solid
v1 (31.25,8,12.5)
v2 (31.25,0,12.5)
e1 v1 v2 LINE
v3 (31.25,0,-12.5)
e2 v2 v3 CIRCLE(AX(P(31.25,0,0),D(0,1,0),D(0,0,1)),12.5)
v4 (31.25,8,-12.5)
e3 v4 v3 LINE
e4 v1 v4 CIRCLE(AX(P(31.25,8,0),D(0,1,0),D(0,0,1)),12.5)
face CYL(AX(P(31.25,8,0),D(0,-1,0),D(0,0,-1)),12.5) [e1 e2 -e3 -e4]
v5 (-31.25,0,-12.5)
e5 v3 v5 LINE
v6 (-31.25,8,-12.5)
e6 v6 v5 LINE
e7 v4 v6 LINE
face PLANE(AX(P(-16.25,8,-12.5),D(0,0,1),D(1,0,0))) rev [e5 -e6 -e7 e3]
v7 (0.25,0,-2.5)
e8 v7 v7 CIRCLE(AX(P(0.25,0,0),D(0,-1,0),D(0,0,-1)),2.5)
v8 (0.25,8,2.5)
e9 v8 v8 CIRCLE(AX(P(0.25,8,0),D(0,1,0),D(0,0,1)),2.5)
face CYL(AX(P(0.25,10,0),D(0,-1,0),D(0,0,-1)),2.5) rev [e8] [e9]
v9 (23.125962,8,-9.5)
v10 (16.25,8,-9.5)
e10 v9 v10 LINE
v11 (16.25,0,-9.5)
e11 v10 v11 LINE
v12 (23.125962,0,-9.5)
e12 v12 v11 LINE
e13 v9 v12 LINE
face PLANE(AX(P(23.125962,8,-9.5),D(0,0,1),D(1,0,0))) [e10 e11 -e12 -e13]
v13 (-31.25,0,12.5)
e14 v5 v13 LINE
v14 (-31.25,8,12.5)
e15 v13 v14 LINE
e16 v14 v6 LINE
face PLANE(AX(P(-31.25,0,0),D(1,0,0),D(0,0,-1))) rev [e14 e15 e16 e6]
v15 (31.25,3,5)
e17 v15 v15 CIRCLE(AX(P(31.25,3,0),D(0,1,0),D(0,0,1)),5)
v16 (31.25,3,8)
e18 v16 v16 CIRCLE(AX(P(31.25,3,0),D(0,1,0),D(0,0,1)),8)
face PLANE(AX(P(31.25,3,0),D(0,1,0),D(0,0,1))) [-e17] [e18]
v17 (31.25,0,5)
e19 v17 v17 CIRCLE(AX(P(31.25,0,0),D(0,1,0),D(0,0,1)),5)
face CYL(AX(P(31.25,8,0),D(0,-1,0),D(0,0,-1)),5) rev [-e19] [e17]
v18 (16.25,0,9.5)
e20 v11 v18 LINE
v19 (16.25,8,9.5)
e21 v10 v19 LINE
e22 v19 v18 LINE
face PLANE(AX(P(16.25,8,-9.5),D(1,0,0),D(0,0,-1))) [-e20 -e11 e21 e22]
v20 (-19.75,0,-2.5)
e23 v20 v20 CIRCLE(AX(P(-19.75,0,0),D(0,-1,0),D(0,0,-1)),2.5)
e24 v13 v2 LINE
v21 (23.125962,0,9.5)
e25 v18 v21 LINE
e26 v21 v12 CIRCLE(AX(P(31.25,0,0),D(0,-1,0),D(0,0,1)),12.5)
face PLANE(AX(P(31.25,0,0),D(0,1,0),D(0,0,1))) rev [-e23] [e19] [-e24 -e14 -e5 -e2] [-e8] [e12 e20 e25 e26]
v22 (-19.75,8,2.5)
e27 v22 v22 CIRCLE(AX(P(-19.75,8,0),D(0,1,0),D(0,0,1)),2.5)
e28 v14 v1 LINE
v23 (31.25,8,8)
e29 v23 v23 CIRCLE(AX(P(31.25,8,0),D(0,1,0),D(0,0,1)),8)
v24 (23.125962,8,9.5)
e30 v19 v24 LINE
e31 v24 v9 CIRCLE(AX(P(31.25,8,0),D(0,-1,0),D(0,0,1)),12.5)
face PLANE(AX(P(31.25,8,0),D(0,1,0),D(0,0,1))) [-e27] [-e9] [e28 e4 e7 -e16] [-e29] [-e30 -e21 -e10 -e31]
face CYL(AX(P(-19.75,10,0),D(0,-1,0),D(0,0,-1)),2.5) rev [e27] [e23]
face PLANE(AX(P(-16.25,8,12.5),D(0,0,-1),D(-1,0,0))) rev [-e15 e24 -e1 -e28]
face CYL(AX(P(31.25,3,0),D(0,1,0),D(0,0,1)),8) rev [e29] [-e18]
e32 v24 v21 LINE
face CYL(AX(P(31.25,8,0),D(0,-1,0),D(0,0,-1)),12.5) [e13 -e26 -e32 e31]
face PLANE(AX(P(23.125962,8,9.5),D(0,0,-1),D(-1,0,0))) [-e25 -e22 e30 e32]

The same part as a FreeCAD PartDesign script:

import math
import FreeCAD as App
import Part
import Sketcher

V = App.Vector


def add_polygon(sketch, points):
    """Adds a closed chain of lines whose ends are joined by coincident constraints."""
    first, n = sketch.GeometryCount, len(points)
    for a, b in zip(points, points[1:] + points[:1]):
        sketch.addGeometry(Part.LineSegment(App.Vector(*a, 0), App.Vector(*b, 0)), False)
    for i in range(n):
        sketch.addConstraint(Sketcher.Constraint("Coincident", first + i, 2, first + (i + 1) % n, 1))

doc = App.newDocument("Part")
body = doc.addObject("PartDesign::Body", "Body")

# Sketch on XZ plane
sketch1 = body.newObject("Sketcher::SketchObject", "Sketch")
sketch1.AttachmentSupport = (doc.getObject("XZ_Plane"), [""])
sketch1.MapMode = "FlatFace"
sketch1.addGeometry([
    Part.LineSegment(V(31, -12, 0), V(-16, -12, 0)),  # 0
    Part.LineSegment(V(-16, -12, 0), V(-16, 12, 0)),  # 1
    Part.LineSegment(V(-16, 12, 0), V(31, 12, 0)),  # 2
    Part.ArcOfCircle(Part.Circle(V(31, 0, 0), V(0, 0, 1), 12), math.radians(-90), math.radians(90)),  # 3
    Part.Circle(V(31, 0, 0), V(0, 0, 1), 5),  # 4
    Part.LineSegment(V(16, -10, 0), V(23, -10, 0)),  # 5
    Part.ArcOfCircle(Part.Circle(V(31, 0, 0), V(0, 0, 1), 13), math.radians(131), math.radians(229)),  # 6
    Part.LineSegment(V(23, 10, 0), V(16, 10, 0)),  # 7
    Part.LineSegment(V(16, 10, 0), V(16, -10, 0)),  # 8
], False)
sketch1.addConstraint([
    Sketcher.Constraint("Coincident", 0, 2, 1, 1),
    Sketcher.Constraint("Coincident", 1, 2, 2, 1),
    Sketcher.Constraint("Tangent", 2, 2, 3, 2),
    Sketcher.Constraint("Tangent", 3, 1, 0, 1),
    Sketcher.Constraint("Coincident", 5, 2, 6, 2),
    Sketcher.Constraint("Coincident", 6, 1, 7, 1),
    Sketcher.Constraint("Coincident", 7, 2, 8, 1),
    Sketcher.Constraint("Coincident", 8, 2, 5, 1),
    Sketcher.Constraint("Horizontal", 0),
    Sketcher.Constraint("Vertical", 1),
    Sketcher.Constraint("Horizontal", 2),
    Sketcher.Constraint("Horizontal", 5),
    Sketcher.Constraint("Horizontal", 7),
    Sketcher.Constraint("Vertical", 8),
    Sketcher.Constraint("Coincident", 4, 3, 3, 3),
    Sketcher.Constraint("Coincident", 6, 3, 3, 3),
    Sketcher.Constraint("Equal", 3, 6),
    Sketcher.Constraint("Symmetric", 5, 2, 6, 1, -1),
    Sketcher.Constraint("Diameter", 4, 10.0),
    Sketcher.Constraint("Radius", 3, 12.5),
    Sketcher.Constraint("DistanceY", 8, 2, 8, 1, 19.0),
    Sketcher.Constraint("DistanceX", 0, 2, 0, 1, 47.5),
    Sketcher.Constraint("DistanceX", 7, 2, 2, 2, 15.0),
    Sketcher.Constraint("DistanceX", -1, 1, 3, 3, 31.25),
])
pad1 = body.newObject("PartDesign::Pad", "Pad")
pad1.Profile = sketch1
pad1.Length = 8
pad1.Reversed = True

# Sketch on XZ plane
sketch2 = body.newObject("Sketcher::SketchObject", "Sketch001")
sketch2.AttachmentSupport = (doc.getObject("XZ_Plane"), [""])
sketch2.MapMode = "FlatFace"
sketch2.AttachmentOffset = App.Placement(V(0, 0, -8), App.Rotation())
sketch2.addGeometry(Part.Circle(V(31, 0, 0), V(0, 0, 1), 8), False)
sketch2.addConstraint([
    Sketcher.Constraint("PointOnObject", 0, 3, -1),
    Sketcher.Constraint("Diameter", 0, 16.0),
    Sketcher.Constraint("DistanceX", -1, 1, 0, 3, 31.25),
])
pocket1 = body.newObject("PartDesign::Pocket", "Pocket")
pocket1.Profile = sketch2
pocket1.Length = 5
pocket1.Reversed = True

# Sketch on YZ plane
sketch3 = body.newObject("Sketcher::SketchObject", "Sketch002")
sketch3.AttachmentSupport = (doc.getObject("YZ_Plane"), [""])
sketch3.MapMode = "FlatFace"
sketch3.AttachmentOffset = App.Placement(V(0, 0, -16.25), App.Rotation())
add_polygon(sketch3, [(8, -12), (0, -12), (0, 12), (8, 12)])  # lines 0-3
sketch3.addConstraint([
    Sketcher.Constraint("Horizontal", 0),
    Sketcher.Constraint("Vertical", 1),
    Sketcher.Constraint("Horizontal", 2),
    Sketcher.Constraint("Vertical", 3),
    Sketcher.Constraint("Symmetric", 0, 2, 1, 2, -1, 1),
    Sketcher.Constraint("DistanceX", 0, 2, 0, 1, 8.0),
    Sketcher.Constraint("DistanceY", 1, 1, 1, 2, 25.0),
])
pad2 = body.newObject("PartDesign::Pad", "Pad001")
pad2.Profile = sketch3
pad2.Length = 15
pad2.Reversed = True

# Sketch on XZ plane
sketch4 = body.newObject("Sketcher::SketchObject", "Sketch003")
sketch4.AttachmentSupport = (doc.getObject("XZ_Plane"), [""])
sketch4.MapMode = "FlatFace"
sketch4.addGeometry([
    Part.Circle(V(0.2, 0, 0), V(0, 0, 1), 2.5),
    Part.Circle(V(-19.8, 0, 0), V(0, 0, 1), 2.5),
], False)
sketch4.addConstraint([
    Sketcher.Constraint("Equal", 0, 1),
    Sketcher.Constraint("PointOnObject", 0, 3, -1),
    Sketcher.Constraint("PointOnObject", 1, 3, -1),
    Sketcher.Constraint("Diameter", 0, 5.0),
    Sketcher.Constraint("DistanceX", 1, 3, 0, 3, 20.0),
    Sketcher.Constraint("DistanceX", -1, 1, 0, 3, 0.25),
])
pocket2 = body.newObject("PartDesign::Pocket", "Pocket001")
pocket2.Profile = sketch4
pocket2.Length = 10

doc.recompute()
